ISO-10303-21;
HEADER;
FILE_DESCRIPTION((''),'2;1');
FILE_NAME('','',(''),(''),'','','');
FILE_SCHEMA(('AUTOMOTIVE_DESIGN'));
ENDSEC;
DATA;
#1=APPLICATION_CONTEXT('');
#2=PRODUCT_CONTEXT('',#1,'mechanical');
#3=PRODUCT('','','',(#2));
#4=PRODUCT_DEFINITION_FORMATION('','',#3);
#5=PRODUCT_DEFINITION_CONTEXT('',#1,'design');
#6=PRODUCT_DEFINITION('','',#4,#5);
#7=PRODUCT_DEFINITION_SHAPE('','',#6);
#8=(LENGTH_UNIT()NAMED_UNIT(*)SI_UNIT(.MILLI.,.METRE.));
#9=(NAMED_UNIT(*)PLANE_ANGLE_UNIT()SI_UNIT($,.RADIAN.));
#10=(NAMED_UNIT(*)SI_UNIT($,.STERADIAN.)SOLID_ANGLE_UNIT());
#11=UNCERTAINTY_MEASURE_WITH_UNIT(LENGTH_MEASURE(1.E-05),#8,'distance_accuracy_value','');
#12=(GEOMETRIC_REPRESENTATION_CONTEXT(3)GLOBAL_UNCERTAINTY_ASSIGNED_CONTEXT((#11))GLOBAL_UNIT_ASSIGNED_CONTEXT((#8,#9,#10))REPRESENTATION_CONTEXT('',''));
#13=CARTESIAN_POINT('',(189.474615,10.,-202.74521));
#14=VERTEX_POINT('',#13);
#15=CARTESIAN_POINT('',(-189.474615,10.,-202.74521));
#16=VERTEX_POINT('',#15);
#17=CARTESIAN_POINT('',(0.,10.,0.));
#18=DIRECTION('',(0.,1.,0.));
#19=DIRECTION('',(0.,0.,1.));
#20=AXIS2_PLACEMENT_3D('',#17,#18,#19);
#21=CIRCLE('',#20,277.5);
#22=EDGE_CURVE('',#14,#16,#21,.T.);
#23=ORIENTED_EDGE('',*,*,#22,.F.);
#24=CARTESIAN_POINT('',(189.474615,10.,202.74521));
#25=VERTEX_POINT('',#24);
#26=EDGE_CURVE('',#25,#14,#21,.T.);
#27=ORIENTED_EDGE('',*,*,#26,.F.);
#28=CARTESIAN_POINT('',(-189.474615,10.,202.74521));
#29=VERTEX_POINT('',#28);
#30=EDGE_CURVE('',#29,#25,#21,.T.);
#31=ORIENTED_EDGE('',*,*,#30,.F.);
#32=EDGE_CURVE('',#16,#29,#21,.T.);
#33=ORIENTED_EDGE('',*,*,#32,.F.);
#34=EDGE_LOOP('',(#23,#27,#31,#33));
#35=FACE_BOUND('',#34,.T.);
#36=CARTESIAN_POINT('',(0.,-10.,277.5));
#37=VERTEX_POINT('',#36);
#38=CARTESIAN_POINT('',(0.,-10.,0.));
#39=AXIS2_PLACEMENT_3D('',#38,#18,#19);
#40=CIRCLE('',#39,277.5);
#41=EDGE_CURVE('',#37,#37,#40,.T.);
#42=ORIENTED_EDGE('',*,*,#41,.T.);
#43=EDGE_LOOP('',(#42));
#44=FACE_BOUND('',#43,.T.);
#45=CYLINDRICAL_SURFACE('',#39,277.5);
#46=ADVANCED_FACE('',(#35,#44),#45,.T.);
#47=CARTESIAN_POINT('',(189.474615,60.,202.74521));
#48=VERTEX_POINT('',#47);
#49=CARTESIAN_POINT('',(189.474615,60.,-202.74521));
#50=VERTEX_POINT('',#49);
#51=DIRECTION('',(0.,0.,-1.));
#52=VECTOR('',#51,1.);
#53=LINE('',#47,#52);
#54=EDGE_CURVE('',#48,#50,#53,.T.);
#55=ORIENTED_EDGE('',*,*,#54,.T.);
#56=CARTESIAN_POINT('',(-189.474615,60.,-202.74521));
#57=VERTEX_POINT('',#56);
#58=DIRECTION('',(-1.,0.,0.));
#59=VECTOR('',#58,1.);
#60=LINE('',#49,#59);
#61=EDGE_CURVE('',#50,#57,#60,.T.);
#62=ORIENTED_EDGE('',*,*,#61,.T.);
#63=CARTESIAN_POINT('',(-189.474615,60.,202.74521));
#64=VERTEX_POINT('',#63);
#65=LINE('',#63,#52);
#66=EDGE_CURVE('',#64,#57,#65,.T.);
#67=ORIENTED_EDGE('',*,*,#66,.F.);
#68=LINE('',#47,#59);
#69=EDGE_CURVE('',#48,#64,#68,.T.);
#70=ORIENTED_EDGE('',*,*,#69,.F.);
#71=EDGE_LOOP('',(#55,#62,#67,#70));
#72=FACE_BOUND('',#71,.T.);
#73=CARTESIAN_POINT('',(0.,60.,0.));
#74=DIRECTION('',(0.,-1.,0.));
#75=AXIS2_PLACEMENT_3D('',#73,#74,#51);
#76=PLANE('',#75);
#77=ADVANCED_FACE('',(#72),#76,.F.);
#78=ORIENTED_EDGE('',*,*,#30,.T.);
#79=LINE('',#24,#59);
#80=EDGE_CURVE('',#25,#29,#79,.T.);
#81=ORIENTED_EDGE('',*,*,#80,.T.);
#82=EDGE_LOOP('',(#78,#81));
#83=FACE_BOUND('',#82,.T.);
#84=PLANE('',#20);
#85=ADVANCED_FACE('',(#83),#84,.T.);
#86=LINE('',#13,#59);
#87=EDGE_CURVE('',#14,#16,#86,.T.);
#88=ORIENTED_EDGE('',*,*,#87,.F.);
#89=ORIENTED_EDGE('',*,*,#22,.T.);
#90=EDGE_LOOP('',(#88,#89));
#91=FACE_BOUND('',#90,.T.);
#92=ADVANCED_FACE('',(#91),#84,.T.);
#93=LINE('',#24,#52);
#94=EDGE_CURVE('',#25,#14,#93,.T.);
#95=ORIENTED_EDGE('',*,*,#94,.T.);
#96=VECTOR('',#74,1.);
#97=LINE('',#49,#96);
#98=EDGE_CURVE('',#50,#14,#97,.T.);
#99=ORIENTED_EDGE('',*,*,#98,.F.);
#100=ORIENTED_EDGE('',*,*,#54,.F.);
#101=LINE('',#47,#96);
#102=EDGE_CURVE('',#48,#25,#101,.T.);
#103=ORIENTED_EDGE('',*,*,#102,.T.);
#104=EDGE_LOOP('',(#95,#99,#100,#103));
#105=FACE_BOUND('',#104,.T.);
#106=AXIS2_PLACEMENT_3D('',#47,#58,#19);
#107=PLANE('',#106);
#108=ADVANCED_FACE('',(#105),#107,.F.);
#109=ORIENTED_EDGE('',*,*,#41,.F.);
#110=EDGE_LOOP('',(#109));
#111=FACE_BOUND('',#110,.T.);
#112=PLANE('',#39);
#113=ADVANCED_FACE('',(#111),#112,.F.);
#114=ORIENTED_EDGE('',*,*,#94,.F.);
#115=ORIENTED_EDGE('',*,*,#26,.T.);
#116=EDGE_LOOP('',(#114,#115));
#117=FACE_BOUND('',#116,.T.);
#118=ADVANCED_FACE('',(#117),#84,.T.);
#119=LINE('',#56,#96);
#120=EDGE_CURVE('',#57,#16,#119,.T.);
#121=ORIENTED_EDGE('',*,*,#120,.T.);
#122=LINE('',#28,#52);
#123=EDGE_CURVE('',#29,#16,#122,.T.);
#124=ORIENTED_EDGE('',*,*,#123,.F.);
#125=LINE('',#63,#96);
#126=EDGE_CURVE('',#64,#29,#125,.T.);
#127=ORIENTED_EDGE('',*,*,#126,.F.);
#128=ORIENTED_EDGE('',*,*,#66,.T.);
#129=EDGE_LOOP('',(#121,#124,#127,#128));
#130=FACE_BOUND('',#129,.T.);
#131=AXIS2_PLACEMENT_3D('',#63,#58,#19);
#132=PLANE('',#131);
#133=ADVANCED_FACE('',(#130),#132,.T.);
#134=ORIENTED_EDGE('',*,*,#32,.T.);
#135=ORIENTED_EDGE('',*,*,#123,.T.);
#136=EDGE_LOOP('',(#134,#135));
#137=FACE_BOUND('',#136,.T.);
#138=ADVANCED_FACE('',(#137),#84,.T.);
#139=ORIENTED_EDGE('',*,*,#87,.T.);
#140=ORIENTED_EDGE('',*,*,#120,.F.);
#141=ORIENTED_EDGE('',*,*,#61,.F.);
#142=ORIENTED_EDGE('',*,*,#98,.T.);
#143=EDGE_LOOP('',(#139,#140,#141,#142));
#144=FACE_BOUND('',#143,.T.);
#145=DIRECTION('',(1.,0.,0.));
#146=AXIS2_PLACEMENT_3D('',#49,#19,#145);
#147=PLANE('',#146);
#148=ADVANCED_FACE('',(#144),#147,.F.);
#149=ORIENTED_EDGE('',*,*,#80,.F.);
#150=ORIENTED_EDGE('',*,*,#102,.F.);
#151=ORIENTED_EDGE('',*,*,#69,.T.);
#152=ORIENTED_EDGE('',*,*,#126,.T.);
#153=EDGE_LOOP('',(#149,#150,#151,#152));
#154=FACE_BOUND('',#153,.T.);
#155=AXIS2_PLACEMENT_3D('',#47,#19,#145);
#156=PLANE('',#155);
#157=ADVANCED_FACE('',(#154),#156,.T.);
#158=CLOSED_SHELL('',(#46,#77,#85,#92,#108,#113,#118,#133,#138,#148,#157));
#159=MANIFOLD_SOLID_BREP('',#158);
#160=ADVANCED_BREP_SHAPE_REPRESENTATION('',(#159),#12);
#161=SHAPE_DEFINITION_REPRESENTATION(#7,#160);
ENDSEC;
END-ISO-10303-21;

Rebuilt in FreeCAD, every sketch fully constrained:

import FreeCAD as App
import Part
import Sketcher
Q = App.Units.Quantity

doc = App.newDocument("Part")
body = doc.addObject("PartDesign::Body", "Body")

# Sketch on XZ plane
sketch1 = doc.addObject("Sketcher::SketchObject", "Sketch")
body.addObject(sketch1)
sketch1.AttachmentSupport = (doc.XZ_Plane, [""])
sketch1.MapMode = "FlatFace"
sketch1.addGeometry(Part.Circle(App.Vector(0, 0, 0), App.Vector(0, 0, 1), 278), False)
sketch1.addConstraint([
    Sketcher.Constraint("Coincident", 0, 3, -1, 1),
    Sketcher.Constraint("Diameter", 0, Q("555 mm")),
])
pad1 = doc.addObject("PartDesign::Pad", "Pad")
body.addObject(pad1)
pad1.Profile = sketch1
pad1.Type = "TwoLengths"
pad1.Length = 10
pad1.Length2 = 10
pad1.Reversed = True

# Sketch on XZ plane
sketch2 = doc.addObject("Sketcher::SketchObject", "Sketch001")
body.addObject(sketch2)
sketch2.AttachmentSupport = (doc.XZ_Plane, [""])
sketch2.MapMode = "FlatFace"
sketch2.AttachmentOffset = App.Placement(App.Vector(0, 0, -10), App.Rotation())
sketch2.addGeometry([
    Part.LineSegment(App.Vector(-189, -203, 0), App.Vector(-189, 203, 0)),
    Part.LineSegment(App.Vector(-189, 203, 0), App.Vector(189, 203, 0)),
    Part.LineSegment(App.Vector(189, 203, 0), App.Vector(189, -203, 0)),
    Part.LineSegment(App.Vector(189, -203, 0), App.Vector(-189, -203, 0)),
], False)
sketch2.addConstraint([
    Sketcher.Constraint("Coincident", 0, 2, 1, 1),
    Sketcher.Constraint("Coincident", 1, 2, 2, 1),
    Sketcher.Constraint("Coincident", 2, 2, 3, 1),
    Sketcher.Constraint("Coincident", 3, 2, 0, 1),
    Sketcher.Constraint("Vertical", 0),
    Sketcher.Constraint("Horizontal", 1),
    Sketcher.Constraint("Vertical", 2),
    Sketcher.Constraint("Horizontal", 3),
    Sketcher.Constraint("Symmetric", 0, 2, 2, 2, -1, 1),
    Sketcher.Constraint("DistanceX", 1, 1, 1, 2, Q("378.94923 mm")),
    Sketcher.Constraint("DistanceY", 0, 1, 0, 2, Q("405.490421 mm")),
])
pad2 = doc.addObject("PartDesign::Pad", "Pad001")
body.addObject(pad2)
pad2.Profile = sketch2
pad2.Length = 50
pad2.Reversed = True

doc.recompute()
